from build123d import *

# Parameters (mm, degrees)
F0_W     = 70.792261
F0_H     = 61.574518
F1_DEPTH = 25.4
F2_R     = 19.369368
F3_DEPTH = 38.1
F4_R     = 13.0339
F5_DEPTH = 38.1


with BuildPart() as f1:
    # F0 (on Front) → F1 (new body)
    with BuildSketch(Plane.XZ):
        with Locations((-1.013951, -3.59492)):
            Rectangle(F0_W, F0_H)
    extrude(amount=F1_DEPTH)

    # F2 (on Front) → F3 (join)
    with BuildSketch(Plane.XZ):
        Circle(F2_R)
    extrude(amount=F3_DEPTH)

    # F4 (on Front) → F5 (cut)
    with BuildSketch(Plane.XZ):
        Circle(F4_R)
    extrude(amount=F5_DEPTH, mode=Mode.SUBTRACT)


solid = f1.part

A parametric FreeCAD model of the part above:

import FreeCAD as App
import Part
import Sketcher

V = App.Vector
Q = App.Units.Quantity

doc = App.newDocument("Part")
body = doc.addObject("PartDesign::Body", "Body")

# Sketch on XZ plane
sketch1 = body.newObject("Sketcher::SketchObject", "Sketch")
sketch1.AttachmentSupport = (doc.getObject("XZ_Plane"), [""])
sketch1.MapMode = "FlatFace"
sketch1.addGeometry([
    Part.LineSegment(V(-36, 27, 0), V(-36, -34, 0)),
    Part.LineSegment(V(-36, -34, 0), V(34, -34, 0)),
    Part.LineSegment(V(34, -34, 0), V(34, 27, 0)),
    Part.LineSegment(V(34, 27, 0), V(-36, 27, 0)),
], False)
sketch1.addConstraint([
    Sketcher.Constraint("Coincident", 0, 2, 1, 1),
    Sketcher.Constraint("Coincident", 1, 2, 2, 1),
    Sketcher.Constraint("Coincident", 2, 2, 3, 1),
    Sketcher.Constraint("Coincident", 3, 2, 0, 1),
    Sketcher.Constraint("Vertical", 0),
    Sketcher.Constraint("Horizontal", 1),
    Sketcher.Constraint("Vertical", 2),
    Sketcher.Constraint("Horizontal", 3),
    Sketcher.Constraint("DistanceX", 1, 1, 1, 2, 70.792261),
    Sketcher.Constraint("DistanceY", 0, 2, 0, 1, 61.574518),
    Sketcher.Constraint("DistanceX", 0, 2, -1, 1, 36.410081),
    Sketcher.Constraint("DistanceY", 0, 2, -1, 1, 34.382179),
])
pad1 = body.newObject("PartDesign::Pad", "Pad")
pad1.Profile = sketch1
pad1.Length = Q("1 in")

# Sketch on XZ plane
sketch2 = body.newObject("Sketcher::SketchObject", "Sketch001")
sketch2.AttachmentSupport = (doc.getObject("XZ_Plane"), [""])
sketch2.MapMode = "FlatFace"
sketch2.addGeometry(Part.Circle(V(0, 0, 0), V(0, 0, 1), 19), False)
sketch2.addConstraint([
    Sketcher.Constraint("Coincident", 0, 3, -1, 1),
    Sketcher.Constraint("Diameter", 0, 38.738736),
])
pad2 = body.newObject("PartDesign::Pad", "Pad001")
pad2.Profile = sketch2
pad2.Length = Q("1.5 in")

# Sketch on XZ plane
sketch3 = body.newObject("Sketcher::SketchObject", "Sketch002")
sketch3.AttachmentSupport = (doc.getObject("XZ_Plane"), [""])
sketch3.MapMode = "FlatFace"
sketch3.addGeometry(Part.Circle(V(0, 0, 0), V(0, 0, 1), 13), False)
sketch3.addConstraint([
    Sketcher.Constraint("Coincident", 0, 3, -1, 1),
    Sketcher.Constraint("Diameter", 0, 26.0678),
])
pocket1 = body.newObject("PartDesign::Pocket", "Pocket")
pocket1.Profile = sketch3
pocket1.Length = Q("1.5 in")
pocket1.Reversed = True

doc.recompute()
